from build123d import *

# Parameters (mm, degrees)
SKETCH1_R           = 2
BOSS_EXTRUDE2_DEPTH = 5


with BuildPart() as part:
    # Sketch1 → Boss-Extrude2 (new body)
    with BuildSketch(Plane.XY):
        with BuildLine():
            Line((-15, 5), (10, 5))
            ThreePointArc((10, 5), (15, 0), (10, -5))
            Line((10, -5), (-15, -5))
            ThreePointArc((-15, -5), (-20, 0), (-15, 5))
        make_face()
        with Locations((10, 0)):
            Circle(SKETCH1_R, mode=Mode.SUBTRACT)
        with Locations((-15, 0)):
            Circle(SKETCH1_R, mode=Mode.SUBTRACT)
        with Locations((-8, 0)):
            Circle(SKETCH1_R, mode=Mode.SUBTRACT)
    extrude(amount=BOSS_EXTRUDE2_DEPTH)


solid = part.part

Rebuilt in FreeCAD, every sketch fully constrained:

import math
import FreeCAD as App
import Part
import Sketcher

V = App.Vector
Q = App.Units.Quantity

doc = App.newDocument("Part")
body = doc.addObject("PartDesign::Body", "Body")

sketch1 = body.newObject("Sketcher::SketchObject", "Sketch")
sketch1.AttachmentSupport = (doc.getObject("XY_Plane"), [""])
sketch1.MapMode = "FlatFace"
sketch1.addGeometry([
    Part.LineSegment(V(10, 5, 0), V(-15, 5, 0)),
    Part.ArcOfCircle(Part.Circle(V(-15, 0, 0), V(0, 0, 1), 5), math.radians(90), math.radians(270)),
    Part.LineSegment(V(-15, -5, 0), V(10, -5, 0)),
    Part.ArcOfCircle(Part.Circle(V(10, 0, 0), V(0, 0, 1), 5), math.radians(-90), math.radians(90)),
    Part.Circle(V(10, 0, 0), V(0, 0, 1), 2),
    Part.Circle(V(-8, 0, 0), V(0, 0, 1), 2),
    Part.Circle(V(-15, 0, 0), V(0, 0, 1), 2),
], False)
sketch1.addConstraint([
    Sketcher.Constraint("Tangent", 0, 2, 1, 1),
    Sketcher.Constraint("Tangent", 1, 2, 2, 1),
    Sketcher.Constraint("Tangent", 2, 2, 3, 1),
    Sketcher.Constraint("Tangent", 3, 2, 0, 1),
    Sketcher.Constraint("Horizontal", 0),
    Sketcher.Constraint("Horizontal", 2),
    Sketcher.Constraint("Coincident", 4, 3, 3, 3),
    Sketcher.Constraint("Coincident", 6, 3, 1, 3),
    Sketcher.Constraint("Equal", 4, 5),
    Sketcher.Constraint("Equal", 5, 6),
    Sketcher.Constraint("PointOnObject", 1, 3, -1),
    Sketcher.Constraint("PointOnObject", 5, 3, -1),
    Sketcher.Constraint("Diameter", 4, Q("4 mm")),
    Sketcher.Constraint("Radius", 1, Q("5 mm")),
    Sketcher.Constraint("DistanceX", 0, 2, 0, 1, Q("25 mm")),
    Sketcher.Constraint("DistanceX", 1, 3, -1, 1, Q("15 mm")),
    Sketcher.Constraint("DistanceX", 5, 3, -1, 1, Q("8 mm")),
])
pad1 = body.newObject("PartDesign::Pad", "Pad")
pad1.Profile = sketch1
pad1.Length = 5

doc.recompute()
